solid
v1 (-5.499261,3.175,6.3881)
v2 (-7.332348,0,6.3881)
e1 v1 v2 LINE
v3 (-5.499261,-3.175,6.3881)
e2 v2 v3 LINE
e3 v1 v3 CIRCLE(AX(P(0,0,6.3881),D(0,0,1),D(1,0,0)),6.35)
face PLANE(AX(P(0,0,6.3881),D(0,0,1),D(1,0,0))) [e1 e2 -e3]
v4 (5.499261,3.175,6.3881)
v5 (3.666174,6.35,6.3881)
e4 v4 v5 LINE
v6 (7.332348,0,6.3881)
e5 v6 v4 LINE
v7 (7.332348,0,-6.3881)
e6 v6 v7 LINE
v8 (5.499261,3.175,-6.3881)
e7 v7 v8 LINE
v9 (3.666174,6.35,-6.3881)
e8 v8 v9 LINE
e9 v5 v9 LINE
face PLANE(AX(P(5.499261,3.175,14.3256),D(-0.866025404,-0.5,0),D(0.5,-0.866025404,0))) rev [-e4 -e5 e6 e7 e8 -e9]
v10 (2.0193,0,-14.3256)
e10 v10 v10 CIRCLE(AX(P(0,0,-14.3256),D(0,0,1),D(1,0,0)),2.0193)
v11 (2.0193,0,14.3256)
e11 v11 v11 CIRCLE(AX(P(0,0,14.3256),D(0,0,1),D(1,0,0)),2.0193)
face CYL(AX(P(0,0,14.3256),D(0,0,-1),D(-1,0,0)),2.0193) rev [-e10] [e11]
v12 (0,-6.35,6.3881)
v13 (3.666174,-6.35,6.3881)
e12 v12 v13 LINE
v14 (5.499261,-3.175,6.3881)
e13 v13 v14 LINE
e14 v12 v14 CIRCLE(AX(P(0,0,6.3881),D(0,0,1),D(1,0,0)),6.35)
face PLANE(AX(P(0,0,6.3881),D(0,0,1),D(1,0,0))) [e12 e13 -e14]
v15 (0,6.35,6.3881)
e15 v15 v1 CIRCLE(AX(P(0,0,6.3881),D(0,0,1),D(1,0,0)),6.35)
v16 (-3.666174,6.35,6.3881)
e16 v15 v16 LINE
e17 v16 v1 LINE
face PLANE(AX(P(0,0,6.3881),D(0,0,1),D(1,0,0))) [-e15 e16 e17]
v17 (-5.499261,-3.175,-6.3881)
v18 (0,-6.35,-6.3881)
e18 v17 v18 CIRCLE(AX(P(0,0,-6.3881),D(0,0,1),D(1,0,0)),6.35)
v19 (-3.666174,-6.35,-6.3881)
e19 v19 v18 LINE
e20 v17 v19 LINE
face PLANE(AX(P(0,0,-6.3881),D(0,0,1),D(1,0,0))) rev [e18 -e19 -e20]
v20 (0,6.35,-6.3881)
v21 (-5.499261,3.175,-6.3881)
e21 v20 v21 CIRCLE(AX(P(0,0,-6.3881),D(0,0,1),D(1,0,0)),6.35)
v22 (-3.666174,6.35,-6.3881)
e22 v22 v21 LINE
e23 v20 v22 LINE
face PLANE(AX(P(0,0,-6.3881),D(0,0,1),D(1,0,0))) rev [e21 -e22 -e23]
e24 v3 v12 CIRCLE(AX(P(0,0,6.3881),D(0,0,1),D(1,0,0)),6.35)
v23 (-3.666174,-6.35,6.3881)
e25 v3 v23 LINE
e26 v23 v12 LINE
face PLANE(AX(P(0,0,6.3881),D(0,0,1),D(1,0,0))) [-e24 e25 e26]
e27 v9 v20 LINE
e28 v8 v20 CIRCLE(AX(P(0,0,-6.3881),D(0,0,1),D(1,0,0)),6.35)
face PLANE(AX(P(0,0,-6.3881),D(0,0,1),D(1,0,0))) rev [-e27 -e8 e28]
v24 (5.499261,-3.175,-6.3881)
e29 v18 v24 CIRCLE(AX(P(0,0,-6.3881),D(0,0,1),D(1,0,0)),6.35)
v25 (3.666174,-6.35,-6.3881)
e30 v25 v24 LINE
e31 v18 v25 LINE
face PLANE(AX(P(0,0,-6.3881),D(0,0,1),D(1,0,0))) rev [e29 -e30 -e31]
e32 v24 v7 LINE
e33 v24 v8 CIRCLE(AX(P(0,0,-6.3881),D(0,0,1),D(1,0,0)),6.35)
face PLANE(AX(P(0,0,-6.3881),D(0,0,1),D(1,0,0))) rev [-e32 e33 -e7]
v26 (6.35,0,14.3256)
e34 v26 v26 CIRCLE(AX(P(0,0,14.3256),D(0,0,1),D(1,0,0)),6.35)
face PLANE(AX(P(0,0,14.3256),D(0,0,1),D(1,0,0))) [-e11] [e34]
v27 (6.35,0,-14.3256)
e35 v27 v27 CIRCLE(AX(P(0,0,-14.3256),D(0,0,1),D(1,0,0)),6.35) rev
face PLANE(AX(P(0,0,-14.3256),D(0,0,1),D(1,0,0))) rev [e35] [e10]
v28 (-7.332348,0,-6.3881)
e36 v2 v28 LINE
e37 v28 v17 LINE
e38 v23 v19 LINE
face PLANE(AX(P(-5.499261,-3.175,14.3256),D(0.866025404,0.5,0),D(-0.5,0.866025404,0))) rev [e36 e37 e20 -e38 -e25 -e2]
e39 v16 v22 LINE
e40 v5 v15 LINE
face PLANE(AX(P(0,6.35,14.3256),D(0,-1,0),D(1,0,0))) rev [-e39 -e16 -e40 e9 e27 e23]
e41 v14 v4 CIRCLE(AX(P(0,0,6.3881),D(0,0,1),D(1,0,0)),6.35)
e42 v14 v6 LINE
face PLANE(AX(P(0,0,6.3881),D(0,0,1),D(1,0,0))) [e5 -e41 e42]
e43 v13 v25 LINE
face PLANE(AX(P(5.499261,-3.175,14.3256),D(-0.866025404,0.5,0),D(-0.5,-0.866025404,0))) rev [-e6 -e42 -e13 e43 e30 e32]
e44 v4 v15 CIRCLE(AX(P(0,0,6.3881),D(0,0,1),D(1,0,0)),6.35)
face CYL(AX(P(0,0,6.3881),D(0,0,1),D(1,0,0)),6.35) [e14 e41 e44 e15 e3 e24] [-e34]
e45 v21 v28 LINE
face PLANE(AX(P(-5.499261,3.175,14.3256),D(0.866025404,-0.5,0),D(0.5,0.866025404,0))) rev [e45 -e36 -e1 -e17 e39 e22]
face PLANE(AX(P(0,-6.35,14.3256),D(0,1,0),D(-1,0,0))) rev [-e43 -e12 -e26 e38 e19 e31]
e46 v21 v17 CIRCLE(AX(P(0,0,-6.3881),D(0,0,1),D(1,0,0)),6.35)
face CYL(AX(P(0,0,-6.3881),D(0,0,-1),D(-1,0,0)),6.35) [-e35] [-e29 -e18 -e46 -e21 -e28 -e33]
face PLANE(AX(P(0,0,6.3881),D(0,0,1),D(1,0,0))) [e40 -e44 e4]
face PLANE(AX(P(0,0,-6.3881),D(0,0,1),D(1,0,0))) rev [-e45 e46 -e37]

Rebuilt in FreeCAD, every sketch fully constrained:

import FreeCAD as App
import Part
import Sketcher

V = App.Vector
Q = App.Units.Quantity

doc = App.newDocument("Part")
body = doc.addObject("PartDesign::Body", "Body")

sketch1 = doc.addObject("Sketcher::SketchObject", "Sketch")
body.addObject(sketch1)
sketch1.AttachmentSupport = (doc.XY_Plane, [""])
sketch1.MapMode = "FlatFace"
sketch1.addGeometry(Part.LineSegment(V(7.332348, 0, 0), V(3.666174, 6.35, 0)), False)
sketch1.addGeometry(Part.LineSegment(V(3.666174, 6.35, 0), V(-3.666174, 6.35, 0)), False)
sketch1.addGeometry(Part.LineSegment(V(-3.666174, 6.35, 0), V(-7.332348, 0, 0)), False)
sketch1.addGeometry(Part.LineSegment(V(-7.332348, 0, 0), V(-3.666174, -6.35, 0)), False)
sketch1.addGeometry(Part.LineSegment(V(-3.666174, -6.35, 0), V(3.666174, -6.35, 0)), False)
sketch1.addGeometry(Part.LineSegment(V(3.666174, -6.35, 0), V(7.332348, 0, 0)), False)
sketch1.addGeometry(Part.Circle(V(0, 0, 0), V(0, 0, 1), 2.0193), False)
sketch1.addConstraint(Sketcher.Constraint("Coincident", 0, 2, 1, 1))
sketch1.addConstraint(Sketcher.Constraint("Coincident", 1, 2, 2, 1))
sketch1.addConstraint(Sketcher.Constraint("Coincident", 2, 2, 3, 1))
sketch1.addConstraint(Sketcher.Constraint("Coincident", 3, 2, 4, 1))
sketch1.addConstraint(Sketcher.Constraint("Coincident", 4, 2, 5, 1))
sketch1.addConstraint(Sketcher.Constraint("Coincident", 5, 2, 0, 1))
sketch1.addConstraint(Sketcher.Constraint("Horizontal", 1))
sketch1.addConstraint(Sketcher.Constraint("Horizontal", 4))
sketch1.addConstraint(Sketcher.Constraint("Coincident", 6, 3, -1, 1))
sketch1.addConstraint(Sketcher.Constraint("Symmetric", 0, 2, 3, 2, -1, 1))
sketch1.addConstraint(Sketcher.Constraint("Symmetric", 2, 2, 5, 2, -1, 1))
sketch1.addConstraint(Sketcher.Constraint("PointOnObject", 2, 2, -1))
sketch1.addConstraint(Sketcher.Constraint("Parallel", 2, 5))
sketch1.addConstraint(Sketcher.Constraint("Vertical", 1, 2, 3, 2))
sketch1.addConstraint(Sketcher.Constraint("Diameter", 6, Q("0.159 in")))
sketch1.addConstraint(Sketcher.Constraint("Angle", 0, Q("120 deg")))
sketch1.addConstraint(Sketcher.Constraint("DistanceY", 3, 2, 1, 2, Q("0.5 in")))
sketch1.addConstraint(Sketcher.Constraint("DistanceX", 1, 2, 1, 1, 7.332348))
pad1 = doc.addObject("PartDesign::Pad", "Pad")
body.addObject(pad1)
pad1.Profile = sketch1
pad1.Length = Q("1.128 in")
pad1.Midplane = True

sketch2 = doc.addObject("Sketcher::SketchObject", "Sketch001")
body.addObject(sketch2)
sketch2.AttachmentSupport = (doc.XY_Plane, [""])
sketch2.MapMode = "FlatFace"
sketch2.AttachmentOffset = App.Placement(V(0, 0, 0.564 * 25.4), App.Rotation())
sketch2.addGeometry(Part.Circle(V(0, 0, 0), V(0, 0, 1), 2.0193), False)
sketch2.addConstraint(Sketcher.Constraint("Coincident", 0, 3, -1, 1))
sketch2.addConstraint(Sketcher.Constraint("Diameter", 0, Q("0.159 in")))
doc.recompute()
hole = doc.addObject("PartDesign::Hole", "Hole")
body.addObject(hole)
hole.Profile = sketch2
hole.ThreadType = "None"
hole.Diameter = Q("0.159 in")
hole.DepthType = "Dimension"
hole.Depth = Q("0.47 in")
hole.DrillPoint = "Angled"
hole.DrillPointAngle = 118

sketch3 = doc.addObject("Sketcher::SketchObject", "Sketch002")
body.addObject(sketch3)
sketch3.AttachmentSupport = (doc.XY_Plane, [""])
sketch3.MapMode = "FlatFace"
sketch3.AttachmentOffset = App.Placement(V(0, 0, -0.564 * 25.4), App.Rotation())
sketch3.addGeometry(Part.Circle(V(0, 0, 0), V(0, 0, 1), 2.0193), False)
sketch3.addConstraint(Sketcher.Constraint("Coincident", 0, 3, -1, 1))
sketch3.addConstraint(Sketcher.Constraint("Diameter", 0, Q("0.159 in")))
doc.recompute()
hole2 = doc.addObject("PartDesign::Hole", "Hole001")
body.addObject(hole2)
hole2.Profile = sketch3
hole2.ThreadType = "None"
hole2.Diameter = Q("0.159 in")
hole2.DepthType = "Dimension"
hole2.Depth = Q("0.47 in")
hole2.DrillPoint = "Angled"
hole2.DrillPointAngle = 118

sketch4 = doc.addObject("Sketcher::SketchObject", "Sketch003")
body.addObject(sketch4)
sketch4.AttachmentSupport = (doc.XY_Plane, [""])
sketch4.MapMode = "FlatFace"
sketch4.AttachmentOffset = App.Placement(V(0, 0, 0.564 * 25.4), App.Rotation())
sketch4.addGeometry(Part.Circle(V(0, 0, 0), V(0, 0, 1), 8.89), False)
sketch4.addGeometry(Part.Circle(V(0, 0, 0), V(0, 0, 1), 6.35), False)
sketch4.addConstraint(Sketcher.Constraint("Coincident", 0, 3, -1, 1))
sketch4.addConstraint(Sketcher.Constraint("Coincident", 1, 3, -1, 1))
sketch4.addConstraint(Sketcher.Constraint("Diameter", 0, Q("0.7 in")))
sketch4.addConstraint(Sketcher.Constraint("Diameter", 1, Q("0.5 in")))
pocket1 = doc.addObject("PartDesign::Pocket", "Pocket")
body.addObject(pocket1)
pocket1.Profile = sketch4
pocket1.Length = Q("0.3125 in")
doc.recompute()

mirrored = doc.addObject("PartDesign::Mirrored", "Mirrored")
body.addObject(mirrored)
mirrored.Originals = [pocket1]
mirrored.MirrorPlane = (doc.XY_Plane, [""])
body.Tip = mirrored

doc.recompute()
